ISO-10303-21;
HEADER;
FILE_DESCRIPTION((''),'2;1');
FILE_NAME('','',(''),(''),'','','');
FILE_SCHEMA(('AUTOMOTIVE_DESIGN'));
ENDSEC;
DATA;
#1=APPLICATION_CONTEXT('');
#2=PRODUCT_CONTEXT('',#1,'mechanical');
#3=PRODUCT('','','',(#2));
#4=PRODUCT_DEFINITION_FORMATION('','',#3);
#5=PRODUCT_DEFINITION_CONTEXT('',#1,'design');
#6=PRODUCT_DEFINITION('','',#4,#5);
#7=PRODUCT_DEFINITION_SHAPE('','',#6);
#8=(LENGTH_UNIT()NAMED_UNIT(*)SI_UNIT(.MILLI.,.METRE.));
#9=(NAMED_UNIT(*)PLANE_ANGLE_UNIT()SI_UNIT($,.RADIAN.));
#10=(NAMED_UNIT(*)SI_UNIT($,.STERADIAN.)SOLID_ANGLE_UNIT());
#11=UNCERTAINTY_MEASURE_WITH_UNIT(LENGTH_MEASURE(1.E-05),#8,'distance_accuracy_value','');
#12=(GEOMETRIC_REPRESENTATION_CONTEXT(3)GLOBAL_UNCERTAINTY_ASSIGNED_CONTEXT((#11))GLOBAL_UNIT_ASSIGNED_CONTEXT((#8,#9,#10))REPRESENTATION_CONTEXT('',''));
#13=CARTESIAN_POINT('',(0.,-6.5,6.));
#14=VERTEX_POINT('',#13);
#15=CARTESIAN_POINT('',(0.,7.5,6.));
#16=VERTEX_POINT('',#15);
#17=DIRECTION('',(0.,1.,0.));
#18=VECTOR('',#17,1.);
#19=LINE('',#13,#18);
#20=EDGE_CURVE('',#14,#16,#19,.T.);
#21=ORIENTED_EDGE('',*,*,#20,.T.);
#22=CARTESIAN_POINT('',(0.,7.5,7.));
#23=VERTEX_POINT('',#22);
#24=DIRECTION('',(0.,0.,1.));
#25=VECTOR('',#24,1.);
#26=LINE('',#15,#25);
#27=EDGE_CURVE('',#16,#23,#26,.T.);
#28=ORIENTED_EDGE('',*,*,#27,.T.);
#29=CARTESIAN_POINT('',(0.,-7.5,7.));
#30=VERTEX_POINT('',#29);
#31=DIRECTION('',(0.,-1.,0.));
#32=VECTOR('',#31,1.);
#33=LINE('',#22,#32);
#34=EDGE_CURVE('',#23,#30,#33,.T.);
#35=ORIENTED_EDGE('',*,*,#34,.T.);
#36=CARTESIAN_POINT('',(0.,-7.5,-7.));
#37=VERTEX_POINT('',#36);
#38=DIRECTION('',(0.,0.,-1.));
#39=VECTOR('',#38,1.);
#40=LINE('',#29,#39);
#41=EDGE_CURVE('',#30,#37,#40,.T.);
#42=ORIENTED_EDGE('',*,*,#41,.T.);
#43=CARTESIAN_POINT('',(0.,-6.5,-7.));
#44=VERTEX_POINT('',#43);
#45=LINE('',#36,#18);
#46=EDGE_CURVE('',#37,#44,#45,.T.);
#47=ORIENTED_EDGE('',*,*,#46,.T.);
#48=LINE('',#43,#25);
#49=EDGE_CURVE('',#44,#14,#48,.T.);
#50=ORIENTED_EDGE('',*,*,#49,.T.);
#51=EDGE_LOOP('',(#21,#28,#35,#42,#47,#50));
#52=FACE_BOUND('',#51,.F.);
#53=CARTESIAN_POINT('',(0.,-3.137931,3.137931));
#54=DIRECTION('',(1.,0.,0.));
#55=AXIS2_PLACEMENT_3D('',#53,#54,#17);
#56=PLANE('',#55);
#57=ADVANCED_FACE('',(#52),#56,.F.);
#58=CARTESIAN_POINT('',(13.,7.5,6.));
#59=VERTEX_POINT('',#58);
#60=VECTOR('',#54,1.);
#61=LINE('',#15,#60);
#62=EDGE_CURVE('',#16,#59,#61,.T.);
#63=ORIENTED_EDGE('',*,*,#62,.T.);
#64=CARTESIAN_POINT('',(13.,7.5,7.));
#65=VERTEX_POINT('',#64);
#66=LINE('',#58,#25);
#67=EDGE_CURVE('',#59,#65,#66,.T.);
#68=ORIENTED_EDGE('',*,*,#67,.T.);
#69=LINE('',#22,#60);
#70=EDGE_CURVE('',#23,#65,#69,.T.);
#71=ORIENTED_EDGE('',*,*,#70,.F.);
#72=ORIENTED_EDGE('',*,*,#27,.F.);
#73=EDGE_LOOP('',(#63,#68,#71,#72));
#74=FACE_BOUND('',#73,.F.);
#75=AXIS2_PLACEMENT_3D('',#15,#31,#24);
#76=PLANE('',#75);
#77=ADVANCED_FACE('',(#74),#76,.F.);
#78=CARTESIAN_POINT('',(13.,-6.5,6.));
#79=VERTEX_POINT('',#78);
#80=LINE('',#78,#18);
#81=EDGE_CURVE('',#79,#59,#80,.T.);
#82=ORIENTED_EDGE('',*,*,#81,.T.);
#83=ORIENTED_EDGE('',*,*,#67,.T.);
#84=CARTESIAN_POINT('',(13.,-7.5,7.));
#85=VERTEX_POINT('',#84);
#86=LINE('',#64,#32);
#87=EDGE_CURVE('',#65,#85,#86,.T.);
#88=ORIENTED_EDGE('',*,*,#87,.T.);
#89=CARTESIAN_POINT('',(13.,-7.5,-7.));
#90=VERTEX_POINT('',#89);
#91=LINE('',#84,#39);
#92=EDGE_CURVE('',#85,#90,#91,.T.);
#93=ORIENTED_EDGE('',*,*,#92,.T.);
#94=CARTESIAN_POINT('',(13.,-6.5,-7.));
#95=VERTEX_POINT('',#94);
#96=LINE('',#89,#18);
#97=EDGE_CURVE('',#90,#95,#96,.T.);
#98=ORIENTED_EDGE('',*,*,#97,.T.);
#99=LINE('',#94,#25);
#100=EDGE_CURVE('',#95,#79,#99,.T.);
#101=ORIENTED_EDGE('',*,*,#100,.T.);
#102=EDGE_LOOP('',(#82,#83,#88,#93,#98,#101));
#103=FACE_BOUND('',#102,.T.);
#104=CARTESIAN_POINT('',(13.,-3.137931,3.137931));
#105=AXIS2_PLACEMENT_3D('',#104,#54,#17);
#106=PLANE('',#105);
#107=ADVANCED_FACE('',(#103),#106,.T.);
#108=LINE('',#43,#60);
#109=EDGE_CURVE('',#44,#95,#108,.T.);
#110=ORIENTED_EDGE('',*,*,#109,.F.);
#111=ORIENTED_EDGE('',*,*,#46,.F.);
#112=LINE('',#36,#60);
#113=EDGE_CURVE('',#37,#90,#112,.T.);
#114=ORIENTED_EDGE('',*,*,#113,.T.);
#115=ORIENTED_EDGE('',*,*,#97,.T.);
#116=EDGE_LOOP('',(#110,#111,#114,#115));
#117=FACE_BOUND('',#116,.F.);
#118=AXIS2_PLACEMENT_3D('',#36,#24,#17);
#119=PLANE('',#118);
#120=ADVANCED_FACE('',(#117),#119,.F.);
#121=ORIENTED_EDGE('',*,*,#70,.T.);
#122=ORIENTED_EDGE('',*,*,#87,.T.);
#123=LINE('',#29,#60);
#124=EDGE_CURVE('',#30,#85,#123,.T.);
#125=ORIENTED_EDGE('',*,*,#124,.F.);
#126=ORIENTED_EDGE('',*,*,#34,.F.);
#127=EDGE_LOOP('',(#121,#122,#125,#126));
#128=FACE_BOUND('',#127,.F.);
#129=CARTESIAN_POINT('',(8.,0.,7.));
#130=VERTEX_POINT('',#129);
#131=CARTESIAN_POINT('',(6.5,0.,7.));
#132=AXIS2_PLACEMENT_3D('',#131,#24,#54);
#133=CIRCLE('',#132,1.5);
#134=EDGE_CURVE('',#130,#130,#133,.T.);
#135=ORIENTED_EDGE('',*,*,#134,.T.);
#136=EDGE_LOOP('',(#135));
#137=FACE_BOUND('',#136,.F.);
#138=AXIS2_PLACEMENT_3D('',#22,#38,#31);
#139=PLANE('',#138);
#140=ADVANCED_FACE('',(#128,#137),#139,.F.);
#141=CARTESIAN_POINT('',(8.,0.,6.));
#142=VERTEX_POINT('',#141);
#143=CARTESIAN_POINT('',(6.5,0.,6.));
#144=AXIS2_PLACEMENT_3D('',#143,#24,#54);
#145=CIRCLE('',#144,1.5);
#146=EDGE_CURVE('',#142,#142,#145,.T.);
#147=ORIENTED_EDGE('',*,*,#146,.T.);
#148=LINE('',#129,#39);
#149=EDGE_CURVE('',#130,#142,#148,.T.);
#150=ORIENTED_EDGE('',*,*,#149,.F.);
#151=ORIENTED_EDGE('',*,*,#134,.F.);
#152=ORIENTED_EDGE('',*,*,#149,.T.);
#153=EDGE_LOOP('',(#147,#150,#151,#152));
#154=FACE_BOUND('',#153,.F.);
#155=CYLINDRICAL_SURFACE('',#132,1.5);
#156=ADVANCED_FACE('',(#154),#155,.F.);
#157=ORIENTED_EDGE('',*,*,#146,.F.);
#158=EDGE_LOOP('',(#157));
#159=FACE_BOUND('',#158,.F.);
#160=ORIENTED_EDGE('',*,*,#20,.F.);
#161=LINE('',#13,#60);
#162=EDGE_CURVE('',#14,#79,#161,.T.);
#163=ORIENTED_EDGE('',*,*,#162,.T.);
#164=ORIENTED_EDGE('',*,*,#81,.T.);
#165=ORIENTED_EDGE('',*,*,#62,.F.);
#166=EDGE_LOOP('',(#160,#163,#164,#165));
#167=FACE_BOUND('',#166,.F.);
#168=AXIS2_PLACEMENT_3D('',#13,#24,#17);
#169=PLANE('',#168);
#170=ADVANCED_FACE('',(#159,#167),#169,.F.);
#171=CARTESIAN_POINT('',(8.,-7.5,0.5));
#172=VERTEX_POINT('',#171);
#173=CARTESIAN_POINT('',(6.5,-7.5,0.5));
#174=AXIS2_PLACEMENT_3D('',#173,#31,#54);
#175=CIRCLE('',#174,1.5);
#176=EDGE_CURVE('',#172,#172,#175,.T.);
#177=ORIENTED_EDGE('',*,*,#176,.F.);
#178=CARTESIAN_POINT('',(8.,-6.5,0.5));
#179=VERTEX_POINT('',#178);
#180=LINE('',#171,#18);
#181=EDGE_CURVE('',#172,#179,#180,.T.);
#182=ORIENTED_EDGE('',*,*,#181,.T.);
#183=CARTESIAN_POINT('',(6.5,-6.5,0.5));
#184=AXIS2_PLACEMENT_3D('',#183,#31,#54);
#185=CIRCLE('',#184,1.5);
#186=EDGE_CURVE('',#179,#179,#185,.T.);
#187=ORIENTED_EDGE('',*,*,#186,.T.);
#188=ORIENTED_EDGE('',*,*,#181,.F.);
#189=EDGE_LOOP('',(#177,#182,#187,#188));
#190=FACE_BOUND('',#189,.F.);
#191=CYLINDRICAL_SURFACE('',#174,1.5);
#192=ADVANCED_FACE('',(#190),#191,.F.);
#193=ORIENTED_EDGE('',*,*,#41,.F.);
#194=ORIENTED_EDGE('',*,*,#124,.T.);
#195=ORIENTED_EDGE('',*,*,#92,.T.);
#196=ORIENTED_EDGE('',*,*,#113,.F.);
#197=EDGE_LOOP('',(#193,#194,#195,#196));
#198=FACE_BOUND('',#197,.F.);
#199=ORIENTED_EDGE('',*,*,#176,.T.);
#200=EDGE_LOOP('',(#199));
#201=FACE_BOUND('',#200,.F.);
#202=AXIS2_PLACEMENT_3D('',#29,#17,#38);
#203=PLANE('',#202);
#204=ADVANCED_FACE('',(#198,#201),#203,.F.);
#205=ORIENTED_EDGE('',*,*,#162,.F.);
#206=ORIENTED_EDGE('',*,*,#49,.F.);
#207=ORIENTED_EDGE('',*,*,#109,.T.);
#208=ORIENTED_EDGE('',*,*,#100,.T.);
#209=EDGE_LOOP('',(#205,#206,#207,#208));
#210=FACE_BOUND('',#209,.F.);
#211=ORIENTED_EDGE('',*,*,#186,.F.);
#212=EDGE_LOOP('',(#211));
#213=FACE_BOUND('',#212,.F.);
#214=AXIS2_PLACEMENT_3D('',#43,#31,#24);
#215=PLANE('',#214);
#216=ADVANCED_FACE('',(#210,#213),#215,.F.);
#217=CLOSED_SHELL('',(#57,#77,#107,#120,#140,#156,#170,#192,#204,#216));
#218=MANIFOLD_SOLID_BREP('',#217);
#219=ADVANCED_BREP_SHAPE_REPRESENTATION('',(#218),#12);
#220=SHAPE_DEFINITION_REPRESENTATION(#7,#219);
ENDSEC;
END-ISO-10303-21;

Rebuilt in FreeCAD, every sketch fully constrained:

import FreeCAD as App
import Part
import Sketcher

V = App.Vector


def add_polygon(sketch, points):
    """Adds a closed chain of lines whose ends are joined by coincident constraints."""
    first, n = sketch.GeometryCount, len(points)
    for a, b in zip(points, points[1:] + points[:1]):
        sketch.addGeometry(Part.LineSegment(App.Vector(*a, 0), App.Vector(*b, 0)), False)
    for i in range(n):
        sketch.addConstraint(Sketcher.Constraint("Coincident", first + i, 2, first + (i + 1) % n, 1))

doc = App.newDocument("Part")
body = doc.addObject("PartDesign::Body", "Body")

sketch1 = doc.addObject("Sketcher::SketchObject", "Sketch")
body.addObject(sketch1)
sketch1.AttachmentSupport = (doc.YZ_Plane, [""])
sketch1.MapMode = "FlatFace"
add_polygon(sketch1, [(-7.5, -7), (-6.5, -7), (-6.5, 6), (7.5, 6), (7.5, 7), (-7.5, 7)])
sketch1.addConstraint([
    Sketcher.Constraint("Horizontal", 0),
    Sketcher.Constraint("Vertical", 1),
    Sketcher.Constraint("Horizontal", 2),
    Sketcher.Constraint("Vertical", 3),
    Sketcher.Constraint("Horizontal", 4),
    Sketcher.Constraint("Vertical", 5),
    Sketcher.Constraint("Symmetric", 3, 2, 5, 2, -1, 1),
    Sketcher.Constraint("Equal", 0, 3),
    Sketcher.Constraint("Equal", 2, 5),
    Sketcher.Constraint("DistanceX", 0, 1, 0, 2, 1.0),
    Sketcher.Constraint("DistanceX", 2, 1, 2, 2, 14.0),
])
pad1 = doc.addObject("PartDesign::Pad", "Pad")
body.addObject(pad1)
pad1.Profile = sketch1
pad1.Length = 13

sketch2 = doc.addObject("Sketcher::SketchObject", "Sketch001")
body.addObject(sketch2)
sketch2.AttachmentSupport = (doc.XY_Plane, [""])
sketch2.MapMode = "FlatFace"
sketch2.AttachmentOffset = App.Placement(V(0, 0, 7), App.Rotation())
sketch2.addGeometry(Part.Circle(V(6.5, 0, 0), V(0, 0, 1), 1.5), False)
sketch2.addConstraint([
    Sketcher.Constraint("PointOnObject", 0, 3, -1),
    Sketcher.Constraint("Diameter", 0, 3.0),
    Sketcher.Constraint("DistanceX", -1, 1, 0, 3, 6.5),
])
pocket1 = doc.addObject("PartDesign::Pocket", "Pocket")
body.addObject(pocket1)
pocket1.Profile = sketch2
pocket1.Type = "ThroughAll"

sketch3 = doc.addObject("Sketcher::SketchObject", "Sketch002")
body.addObject(sketch3)
sketch3.AttachmentSupport = (doc.XZ_Plane, [""])
sketch3.MapMode = "FlatFace"
sketch3.AttachmentOffset = App.Placement(V(0, 0, 7.5), App.Rotation())
sketch3.addGeometry(Part.Circle(V(6.5, 0.5, 0), V(0, 0, 1), 1.5), False)
sketch3.addConstraint([
    Sketcher.Constraint("Diameter", 0, 3.0),
    Sketcher.Constraint("DistanceX", -1, 1, 0, 3, 6.5),
    Sketcher.Constraint("DistanceY", -1, 1, 0, 3, 0.5),
])
pocket2 = doc.addObject("PartDesign::Pocket", "Pocket001")
body.addObject(pocket2)
pocket2.Profile = sketch3
pocket2.Type = "ThroughAll"

doc.recompute()
